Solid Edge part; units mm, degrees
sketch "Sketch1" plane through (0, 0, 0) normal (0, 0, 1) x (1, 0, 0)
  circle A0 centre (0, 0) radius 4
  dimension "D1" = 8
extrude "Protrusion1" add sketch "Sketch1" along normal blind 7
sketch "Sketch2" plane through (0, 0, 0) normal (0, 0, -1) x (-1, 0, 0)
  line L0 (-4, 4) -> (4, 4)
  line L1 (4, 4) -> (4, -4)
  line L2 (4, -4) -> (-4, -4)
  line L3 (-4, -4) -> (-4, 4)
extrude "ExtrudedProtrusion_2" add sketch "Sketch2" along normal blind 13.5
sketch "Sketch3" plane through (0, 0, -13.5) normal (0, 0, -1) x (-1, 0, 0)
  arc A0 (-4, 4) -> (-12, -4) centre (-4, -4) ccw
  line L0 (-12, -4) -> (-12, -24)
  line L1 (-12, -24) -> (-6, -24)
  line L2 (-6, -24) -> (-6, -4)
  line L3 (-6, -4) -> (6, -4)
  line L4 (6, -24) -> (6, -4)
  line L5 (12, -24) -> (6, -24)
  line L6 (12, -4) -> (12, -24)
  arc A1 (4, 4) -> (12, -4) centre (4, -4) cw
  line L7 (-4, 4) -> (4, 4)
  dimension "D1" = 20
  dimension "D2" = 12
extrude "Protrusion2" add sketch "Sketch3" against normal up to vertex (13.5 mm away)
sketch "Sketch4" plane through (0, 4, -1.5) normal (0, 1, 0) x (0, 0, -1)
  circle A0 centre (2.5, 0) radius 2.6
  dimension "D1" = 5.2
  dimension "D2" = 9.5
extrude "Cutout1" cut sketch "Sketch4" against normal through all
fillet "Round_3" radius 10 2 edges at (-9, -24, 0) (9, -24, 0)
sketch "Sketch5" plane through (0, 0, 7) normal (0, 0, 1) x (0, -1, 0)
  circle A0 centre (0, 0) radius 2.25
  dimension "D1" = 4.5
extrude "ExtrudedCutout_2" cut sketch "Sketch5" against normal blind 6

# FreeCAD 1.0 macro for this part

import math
import FreeCAD as App
import Part
import Sketcher

V = App.Vector
Q = App.Units.Quantity


def edges_at(feature, points):
    """Names of the edges that pass closest to the given points."""
    edges = feature.Shape.Edges
    near = lambda p: min(range(len(edges)), key=lambda i: edges[i].distToShape(Part.Vertex(*p))[0])
    return sorted({f"Edge{near(p) + 1}" for p in points})

doc = App.newDocument("Part")
body = doc.addObject("PartDesign::Body", "Body")

# Sketch on XY plane
sketch1 = doc.addObject("Sketcher::SketchObject", "Sketch")
body.addObject(sketch1)
sketch1.AttachmentSupport = (doc.XY_Plane, [""])
sketch1.MapMode = "FlatFace"
sketch1.addGeometry(Part.Circle(V(0, 0, 0), V(0, 0, 1), 4), False)
sketch1.addConstraint(Sketcher.Constraint("Coincident", 0, 3, -1, 1))
sketch1.addConstraint(Sketcher.Constraint("Diameter", 0, Q("8 mm")))
pad1 = doc.addObject("PartDesign::Pad", "Pad")
body.addObject(pad1)
pad1.Profile = sketch1
pad1.Length = 7

# Sketch on XY plane
sketch2 = doc.addObject("Sketcher::SketchObject", "Sketch001")
body.addObject(sketch2)
sketch2.AttachmentSupport = (doc.XY_Plane, [""])
sketch2.MapMode = "FlatFace"
sketch2.addGeometry(Part.LineSegment(V(-4, 4, 0), V(4, 4, 0)), False)
sketch2.addGeometry(Part.LineSegment(V(4, 4, 0), V(4, -4, 0)), False)
sketch2.addGeometry(Part.LineSegment(V(4, -4, 0), V(-4, -4, 0)), False)
sketch2.addGeometry(Part.LineSegment(V(-4, -4, 0), V(-4, 4, 0)), False)
sketch2.addConstraint(Sketcher.Constraint("Coincident", 0, 2, 1, 1))
sketch2.addConstraint(Sketcher.Constraint("Coincident", 1, 2, 2, 1))
sketch2.addConstraint(Sketcher.Constraint("Coincident", 2, 2, 3, 1))
sketch2.addConstraint(Sketcher.Constraint("Coincident", 3, 2, 0, 1))
sketch2.addConstraint(Sketcher.Constraint("Horizontal", 0))
sketch2.addConstraint(Sketcher.Constraint("Vertical", 1))
sketch2.addConstraint(Sketcher.Constraint("Horizontal", 2))
sketch2.addConstraint(Sketcher.Constraint("Vertical", 3))
sketch2.addConstraint(Sketcher.Constraint("Symmetric", 0, 2, 2, 2, -1, 1))
sketch2.addConstraint(Sketcher.Constraint("Equal", 2, 1))
sketch2.addConstraint(Sketcher.Constraint("DistanceX", 0, 1, 0, 2, Q("8 mm")))
pad2 = doc.addObject("PartDesign::Pad", "Pad001")
body.addObject(pad2)
pad2.Profile = sketch2
pad2.Length = 13.5
pad2.Reversed = True

# Sketch on XY plane
sketch3 = doc.addObject("Sketcher::SketchObject", "Sketch002")
body.addObject(sketch3)
sketch3.AttachmentSupport = (doc.XY_Plane, [""])
sketch3.MapMode = "FlatFace"
sketch3.AttachmentOffset = App.Placement(V(0, 0, -13.5), App.Rotation())
sketch3.addGeometry(Part.LineSegment(V(-4, 4, 0), V(4, 4, 0)), False)
sketch3.addGeometry(Part.ArcOfCircle(Part.Circle(V(4, -4, 0), V(0, 0, 1), 8), math.radians(0), math.radians(90)), False)
sketch3.addGeometry(Part.LineSegment(V(12, -4, 0), V(12, -24, 0)), False)
sketch3.addGeometry(Part.LineSegment(V(12, -24, 0), V(6, -24, 0)), False)
sketch3.addGeometry(Part.LineSegment(V(6, -24, 0), V(6, -4, 0)), False)
sketch3.addGeometry(Part.LineSegment(V(6, -4, 0), V(-6, -4, 0)), False)
sketch3.addGeometry(Part.LineSegment(V(-6, -4, 0), V(-6, -24, 0)), False)
sketch3.addGeometry(Part.LineSegment(V(-6, -24, 0), V(-12, -24, 0)), False)
sketch3.addGeometry(Part.LineSegment(V(-12, -24, 0), V(-12, -4, 0)), False)
sketch3.addGeometry(Part.ArcOfCircle(Part.Circle(V(-4, -4, 0), V(0, 0, 1), 8), math.radians(90), math.radians(180)), False)
sketch3.addConstraint(Sketcher.Constraint("Tangent", 0, 2, 1, 2))
sketch3.addConstraint(Sketcher.Constraint("Tangent", 1, 1, 2, 1))
sketch3.addConstraint(Sketcher.Constraint("Coincident", 2, 2, 3, 1))
sketch3.addConstraint(Sketcher.Constraint("Coincident", 3, 2, 4, 1))
sketch3.addConstraint(Sketcher.Constraint("Coincident", 4, 2, 5, 1))
sketch3.addConstraint(Sketcher.Constraint("Coincident", 5, 2, 6, 1))
sketch3.addConstraint(Sketcher.Constraint("Coincident", 6, 2, 7, 1))
sketch3.addConstraint(Sketcher.Constraint("Coincident", 7, 2, 8, 1))
sketch3.addConstraint(Sketcher.Constraint("Tangent", 8, 2, 9, 2))
sketch3.addConstraint(Sketcher.Constraint("Tangent", 9, 1, 0, 1))
sketch3.addConstraint(Sketcher.Constraint("Horizontal", 0))
sketch3.addConstraint(Sketcher.Constraint("Vertical", 2))
sketch3.addConstraint(Sketcher.Constraint("Horizontal", 3))
sketch3.addConstraint(Sketcher.Constraint("Vertical", 4))
sketch3.addConstraint(Sketcher.Constraint("Horizontal", 5))
sketch3.addConstraint(Sketcher.Constraint("Vertical", 6))
sketch3.addConstraint(Sketcher.Constraint("Horizontal", 7))
sketch3.addConstraint(Sketcher.Constraint("Vertical", 8))
sketch3.addConstraint(Sketcher.Constraint("Equal", 1, 9))
sketch3.addConstraint(Sketcher.Constraint("Symmetric", 3, 2, 6, 2, -2))
sketch3.addConstraint(Sketcher.Constraint("Horizontal", 1, 1, 4, 2))
sketch3.addConstraint(Sketcher.Constraint("Equal", 3, 7))
sketch3.addConstraint(Sketcher.Constraint("DistanceX", 5, 2, 5, 1, Q("12 mm")))
sketch3.addConstraint(Sketcher.Constraint("DistanceX", -1, 1, 1, 1, Q("12 mm")))
sketch3.addConstraint(Sketcher.Constraint("Radius", 1, Q("8 mm")))
sketch3.addConstraint(Sketcher.Constraint("DistanceY", 2, 2, 2, 1, Q("20 mm")))
sketch3.addConstraint(Sketcher.Constraint("DistanceY", 1, 3, -1, 1, Q("4 mm")))
pad3 = doc.addObject("PartDesign::Pad", "Pad002")
body.addObject(pad3)
pad3.Profile = sketch3
pad3.Length = 13.5

# Sketch on XZ plane
sketch4 = doc.addObject("Sketcher::SketchObject", "Sketch003")
body.addObject(sketch4)
sketch4.AttachmentSupport = (doc.XZ_Plane, [""])
sketch4.MapMode = "FlatFace"
sketch4.AttachmentOffset = App.Placement(V(0, 0, -4), App.Rotation())
sketch4.addGeometry(Part.Circle(V(0, -4, 0), V(0, 0, 1), 2.6), False)
sketch4.addConstraint(Sketcher.Constraint("PointOnObject", 0, 3, -2))
sketch4.addConstraint(Sketcher.Constraint("Diameter", 0, Q("5.2 mm")))
sketch4.addConstraint(Sketcher.Constraint("DistanceY", 0, 3, -1, 1, Q("4 mm")))
pocket1 = doc.addObject("PartDesign::Pocket", "Pocket")
body.addObject(pocket1)
pocket1.Profile = sketch4
pocket1.Type = "ThroughAll"
pocket1.Reversed = True
doc.recompute()

fillet = doc.addObject("PartDesign::Fillet", "Fillet")
body.addObject(fillet)
fillet.Base = (pocket1, edges_at(pocket1, [(-9, -24, 0), (9, -24, 0)]))
fillet.Radius = 10

# Sketch on XY plane
sketch5 = doc.addObject("Sketcher::SketchObject", "Sketch004")
body.addObject(sketch5)
sketch5.AttachmentSupport = (doc.XY_Plane, [""])
sketch5.MapMode = "FlatFace"
sketch5.AttachmentOffset = App.Placement(V(0, 0, 7), App.Rotation())
sketch5.addGeometry(Part.Circle(V(0, 0, 0), V(0, 0, 1), 2.2), False)
sketch5.addConstraint(Sketcher.Constraint("Coincident", 0, 3, -1, 1))
sketch5.addConstraint(Sketcher.Constraint("Diameter", 0, Q("4.5 mm")))
pocket2 = doc.addObject("PartDesign::Pocket", "Pocket001")
body.addObject(pocket2)
pocket2.Profile = sketch5
pocket2.Length = 6

doc.recompute()
